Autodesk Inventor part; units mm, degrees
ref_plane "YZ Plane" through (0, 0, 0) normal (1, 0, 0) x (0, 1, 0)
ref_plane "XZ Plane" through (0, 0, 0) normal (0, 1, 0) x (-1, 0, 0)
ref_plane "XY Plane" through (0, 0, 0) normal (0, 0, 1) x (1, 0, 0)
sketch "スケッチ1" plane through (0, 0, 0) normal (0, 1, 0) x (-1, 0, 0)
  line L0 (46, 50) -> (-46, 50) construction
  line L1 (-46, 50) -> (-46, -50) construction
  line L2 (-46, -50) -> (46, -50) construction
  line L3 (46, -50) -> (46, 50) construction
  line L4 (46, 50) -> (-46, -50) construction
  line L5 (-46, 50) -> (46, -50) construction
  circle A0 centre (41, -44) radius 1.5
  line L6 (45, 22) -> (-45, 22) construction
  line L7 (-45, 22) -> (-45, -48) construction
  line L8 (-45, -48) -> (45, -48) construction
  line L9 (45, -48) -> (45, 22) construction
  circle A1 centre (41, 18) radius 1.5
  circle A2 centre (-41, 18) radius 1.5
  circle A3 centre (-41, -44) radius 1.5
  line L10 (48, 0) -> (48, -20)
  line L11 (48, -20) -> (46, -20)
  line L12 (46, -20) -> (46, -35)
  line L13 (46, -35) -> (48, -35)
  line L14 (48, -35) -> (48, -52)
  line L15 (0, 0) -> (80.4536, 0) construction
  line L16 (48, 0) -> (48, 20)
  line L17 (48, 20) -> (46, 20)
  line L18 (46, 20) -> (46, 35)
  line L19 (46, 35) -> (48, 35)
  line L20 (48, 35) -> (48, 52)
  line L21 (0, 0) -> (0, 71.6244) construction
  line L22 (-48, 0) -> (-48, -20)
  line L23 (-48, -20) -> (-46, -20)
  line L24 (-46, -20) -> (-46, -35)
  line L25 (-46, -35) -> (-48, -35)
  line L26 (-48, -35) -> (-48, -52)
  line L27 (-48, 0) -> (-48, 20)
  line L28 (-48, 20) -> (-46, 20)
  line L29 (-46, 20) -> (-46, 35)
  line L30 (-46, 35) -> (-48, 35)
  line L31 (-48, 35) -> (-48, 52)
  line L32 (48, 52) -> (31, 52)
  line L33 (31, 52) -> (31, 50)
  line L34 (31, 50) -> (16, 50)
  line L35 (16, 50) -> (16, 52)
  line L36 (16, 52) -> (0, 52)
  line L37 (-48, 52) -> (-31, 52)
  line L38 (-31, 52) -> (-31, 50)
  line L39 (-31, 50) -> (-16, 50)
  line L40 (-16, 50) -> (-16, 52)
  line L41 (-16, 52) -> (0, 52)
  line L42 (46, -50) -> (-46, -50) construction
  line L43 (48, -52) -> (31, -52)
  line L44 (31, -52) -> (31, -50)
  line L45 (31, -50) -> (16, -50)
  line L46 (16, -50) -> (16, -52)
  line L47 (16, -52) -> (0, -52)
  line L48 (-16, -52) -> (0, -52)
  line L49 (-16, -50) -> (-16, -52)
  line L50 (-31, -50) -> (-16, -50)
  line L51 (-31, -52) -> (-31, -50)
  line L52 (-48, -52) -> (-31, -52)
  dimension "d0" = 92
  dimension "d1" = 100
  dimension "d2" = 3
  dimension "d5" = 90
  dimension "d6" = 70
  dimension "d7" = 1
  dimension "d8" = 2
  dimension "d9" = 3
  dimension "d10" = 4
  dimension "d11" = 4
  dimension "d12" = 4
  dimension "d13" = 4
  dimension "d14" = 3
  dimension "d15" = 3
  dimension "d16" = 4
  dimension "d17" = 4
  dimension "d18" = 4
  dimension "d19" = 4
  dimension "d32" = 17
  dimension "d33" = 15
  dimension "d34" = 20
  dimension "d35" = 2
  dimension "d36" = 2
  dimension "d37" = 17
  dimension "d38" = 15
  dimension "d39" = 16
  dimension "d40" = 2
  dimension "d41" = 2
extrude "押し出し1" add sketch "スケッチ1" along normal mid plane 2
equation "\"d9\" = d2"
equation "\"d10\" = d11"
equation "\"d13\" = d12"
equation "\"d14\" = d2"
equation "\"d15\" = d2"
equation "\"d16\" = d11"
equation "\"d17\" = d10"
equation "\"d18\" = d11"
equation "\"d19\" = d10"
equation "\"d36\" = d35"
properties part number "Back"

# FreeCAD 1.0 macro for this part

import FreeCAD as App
import Part
import Sketcher

doc = App.newDocument("Part")
body = doc.addObject("PartDesign::Body", "Body")

# Sketch on XZ plane
sketch1 = body.newObject("Sketcher::SketchObject", "Sketch")
sketch1.AttachmentSupport = (doc.getObject("XZ_Plane"), [""])
sketch1.MapMode = "FlatFace"
sketch1.addGeometry(Part.LineSegment(App.Vector(-48, -20, 0), App.Vector(-48, 20, 0)), False)
sketch1.addGeometry(Part.LineSegment(App.Vector(-48, 20, 0), App.Vector(-46, 20, 0)), False)
sketch1.addGeometry(Part.LineSegment(App.Vector(-46, 20, 0), App.Vector(-46, 35, 0)), False)
sketch1.addGeometry(Part.LineSegment(App.Vector(-46, 35, 0), App.Vector(-48, 35, 0)), False)
sketch1.addGeometry(Part.LineSegment(App.Vector(-48, 35, 0), App.Vector(-48, 52, 0)), False)
sketch1.addGeometry(Part.LineSegment(App.Vector(-48, 52, 0), App.Vector(-31, 52, 0)), False)
sketch1.addGeometry(Part.LineSegment(App.Vector(-31, 52, 0), App.Vector(-31, 50, 0)), False)
sketch1.addGeometry(Part.LineSegment(App.Vector(-31, 50, 0), App.Vector(-16, 50, 0)), False)
sketch1.addGeometry(Part.LineSegment(App.Vector(-16, 50, 0), App.Vector(-16, 52, 0)), False)
sketch1.addGeometry(Part.LineSegment(App.Vector(-16, 52, 0), App.Vector(16, 52, 0)), False)
sketch1.addGeometry(Part.LineSegment(App.Vector(16, 52, 0), App.Vector(16, 50, 0)), False)
sketch1.addGeometry(Part.LineSegment(App.Vector(16, 50, 0), App.Vector(31, 50, 0)), False)
sketch1.addGeometry(Part.LineSegment(App.Vector(31, 50, 0), App.Vector(31, 52, 0)), False)
sketch1.addGeometry(Part.LineSegment(App.Vector(31, 52, 0), App.Vector(48, 52, 0)), False)
sketch1.addGeometry(Part.LineSegment(App.Vector(48, 52, 0), App.Vector(48, 35, 0)), False)
sketch1.addGeometry(Part.LineSegment(App.Vector(48, 35, 0), App.Vector(46, 35, 0)), False)
sketch1.addGeometry(Part.LineSegment(App.Vector(46, 35, 0), App.Vector(46, 20, 0)), False)
sketch1.addGeometry(Part.LineSegment(App.Vector(46, 20, 0), App.Vector(48, 20, 0)), False)
sketch1.addGeometry(Part.LineSegment(App.Vector(48, 20, 0), App.Vector(48, -20, 0)), False)
sketch1.addGeometry(Part.LineSegment(App.Vector(48, -20, 0), App.Vector(46, -20, 0)), False)
sketch1.addGeometry(Part.LineSegment(App.Vector(46, -20, 0), App.Vector(46, -35, 0)), False)
sketch1.addGeometry(Part.LineSegment(App.Vector(46, -35, 0), App.Vector(48, -35, 0)), False)
sketch1.addGeometry(Part.LineSegment(App.Vector(48, -35, 0), App.Vector(48, -52, 0)), False)
sketch1.addGeometry(Part.LineSegment(App.Vector(48, -52, 0), App.Vector(31, -52, 0)), False)
sketch1.addGeometry(Part.LineSegment(App.Vector(31, -52, 0), App.Vector(31, -50, 0)), False)
sketch1.addGeometry(Part.LineSegment(App.Vector(31, -50, 0), App.Vector(16, -50, 0)), False)
sketch1.addGeometry(Part.LineSegment(App.Vector(16, -50, 0), App.Vector(16, -52, 0)), False)
sketch1.addGeometry(Part.LineSegment(App.Vector(16, -52, 0), App.Vector(-16, -52, 0)), False)
sketch1.addGeometry(Part.LineSegment(App.Vector(-16, -52, 0), App.Vector(-16, -50, 0)), False)
sketch1.addGeometry(Part.LineSegment(App.Vector(-16, -50, 0), App.Vector(-31, -50, 0)), False)
sketch1.addGeometry(Part.LineSegment(App.Vector(-31, -50, 0), App.Vector(-31, -52, 0)), False)
sketch1.addGeometry(Part.LineSegment(App.Vector(-31, -52, 0), App.Vector(-48, -52, 0)), False)
sketch1.addGeometry(Part.LineSegment(App.Vector(-48, -52, 0), App.Vector(-48, -35, 0)), False)
sketch1.addGeometry(Part.LineSegment(App.Vector(-48, -35, 0), App.Vector(-46, -35, 0)), False)
sketch1.addGeometry(Part.LineSegment(App.Vector(-46, -35, 0), App.Vector(-46, -20, 0)), False)
sketch1.addGeometry(Part.LineSegment(App.Vector(-46, -20, 0), App.Vector(-48, -20, 0)), False)
sketch1.addGeometry(Part.Circle(App.Vector(41, -44, 0), App.Vector(0, 0, 1), 1.5), False)
sketch1.addGeometry(Part.Circle(App.Vector(-41, -44, 0), App.Vector(0, 0, 1), 1.5), False)
sketch1.addGeometry(Part.Circle(App.Vector(41, 18, 0), App.Vector(0, 0, 1), 1.5), False)
sketch1.addGeometry(Part.Circle(App.Vector(-41, 18, 0), App.Vector(0, 0, 1), 1.5), False)
sketch1.addConstraint(Sketcher.Constraint("Coincident", 0, 2, 1, 1))
sketch1.addConstraint(Sketcher.Constraint("Coincident", 1, 2, 2, 1))
sketch1.addConstraint(Sketcher.Constraint("Coincident", 2, 2, 3, 1))
sketch1.addConstraint(Sketcher.Constraint("Coincident", 3, 2, 4, 1))
sketch1.addConstraint(Sketcher.Constraint("Coincident", 4, 2, 5, 1))
sketch1.addConstraint(Sketcher.Constraint("Coincident", 5, 2, 6, 1))
sketch1.addConstraint(Sketcher.Constraint("Coincident", 6, 2, 7, 1))
sketch1.addConstraint(Sketcher.Constraint("Coincident", 7, 2, 8, 1))
sketch1.addConstraint(Sketcher.Constraint("Coincident", 8, 2, 9, 1))
sketch1.addConstraint(Sketcher.Constraint("Coincident", 9, 2, 10, 1))
sketch1.addConstraint(Sketcher.Constraint("Coincident", 10, 2, 11, 1))
sketch1.addConstraint(Sketcher.Constraint("Coincident", 11, 2, 12, 1))
sketch1.addConstraint(Sketcher.Constraint("Coincident", 12, 2, 13, 1))
sketch1.addConstraint(Sketcher.Constraint("Coincident", 13, 2, 14, 1))
sketch1.addConstraint(Sketcher.Constraint("Coincident", 14, 2, 15, 1))
sketch1.addConstraint(Sketcher.Constraint("Coincident", 15, 2, 16, 1))
sketch1.addConstraint(Sketcher.Constraint("Coincident", 16, 2, 17, 1))
sketch1.addConstraint(Sketcher.Constraint("Coincident", 17, 2, 18, 1))
sketch1.addConstraint(Sketcher.Constraint("Coincident", 18, 2, 19, 1))
sketch1.addConstraint(Sketcher.Constraint("Coincident", 19, 2, 20, 1))
sketch1.addConstraint(Sketcher.Constraint("Coincident", 20, 2, 21, 1))
sketch1.addConstraint(Sketcher.Constraint("Coincident", 21, 2, 22, 1))
sketch1.addConstraint(Sketcher.Constraint("Coincident", 22, 2, 23, 1))
sketch1.addConstraint(Sketcher.Constraint("Coincident", 23, 2, 24, 1))
sketch1.addConstraint(Sketcher.Constraint("Coincident", 24, 2, 25, 1))
sketch1.addConstraint(Sketcher.Constraint("Coincident", 25, 2, 26, 1))
sketch1.addConstraint(Sketcher.Constraint("Coincident", 26, 2, 27, 1))
sketch1.addConstraint(Sketcher.Constraint("Coincident", 27, 2, 28, 1))
sketch1.addConstraint(Sketcher.Constraint("Coincident", 28, 2, 29, 1))
sketch1.addConstraint(Sketcher.Constraint("Coincident", 29, 2, 30, 1))
sketch1.addConstraint(Sketcher.Constraint("Coincident", 30, 2, 31, 1))
sketch1.addConstraint(Sketcher.Constraint("Coincident", 31, 2, 32, 1))
sketch1.addConstraint(Sketcher.Constraint("Coincident", 32, 2, 33, 1))
sketch1.addConstraint(Sketcher.Constraint("Coincident", 33, 2, 34, 1))
sketch1.addConstraint(Sketcher.Constraint("Coincident", 34, 2, 35, 1))
sketch1.addConstraint(Sketcher.Constraint("Coincident", 35, 2, 0, 1))
sketch1.addConstraint(Sketcher.Constraint("Vertical", 0))
sketch1.addConstraint(Sketcher.Constraint("Horizontal", 1))
sketch1.addConstraint(Sketcher.Constraint("Vertical", 2))
sketch1.addConstraint(Sketcher.Constraint("Horizontal", 3))
sketch1.addConstraint(Sketcher.Constraint("Vertical", 4))
sketch1.addConstraint(Sketcher.Constraint("Horizontal", 5))
sketch1.addConstraint(Sketcher.Constraint("Vertical", 6))
sketch1.addConstraint(Sketcher.Constraint("Horizontal", 7))
sketch1.addConstraint(Sketcher.Constraint("Vertical", 8))
sketch1.addConstraint(Sketcher.Constraint("Horizontal", 9))
sketch1.addConstraint(Sketcher.Constraint("Vertical", 10))
sketch1.addConstraint(Sketcher.Constraint("Horizontal", 11))
sketch1.addConstraint(Sketcher.Constraint("Vertical", 12))
sketch1.addConstraint(Sketcher.Constraint("Horizontal", 13))
sketch1.addConstraint(Sketcher.Constraint("Vertical", 14))
sketch1.addConstraint(Sketcher.Constraint("Horizontal", 15))
sketch1.addConstraint(Sketcher.Constraint("Vertical", 16))
sketch1.addConstraint(Sketcher.Constraint("Horizontal", 17))
sketch1.addConstraint(Sketcher.Constraint("Vertical", 18))
sketch1.addConstraint(Sketcher.Constraint("Horizontal", 19))
sketch1.addConstraint(Sketcher.Constraint("Vertical", 20))
sketch1.addConstraint(Sketcher.Constraint("Horizontal", 21))
sketch1.addConstraint(Sketcher.Constraint("Vertical", 22))
sketch1.addConstraint(Sketcher.Constraint("Horizontal", 23))
sketch1.addConstraint(Sketcher.Constraint("Vertical", 24))
sketch1.addConstraint(Sketcher.Constraint("Horizontal", 25))
sketch1.addConstraint(Sketcher.Constraint("Vertical", 26))
sketch1.addConstraint(Sketcher.Constraint("Horizontal", 27))
sketch1.addConstraint(Sketcher.Constraint("Vertical", 28))
sketch1.addConstraint(Sketcher.Constraint("Horizontal", 29))
sketch1.addConstraint(Sketcher.Constraint("Vertical", 30))
sketch1.addConstraint(Sketcher.Constraint("Horizontal", 31))
sketch1.addConstraint(Sketcher.Constraint("Vertical", 32))
sketch1.addConstraint(Sketcher.Constraint("Horizontal", 33))
sketch1.addConstraint(Sketcher.Constraint("Vertical", 34))
sketch1.addConstraint(Sketcher.Constraint("Horizontal", 35))
sketch1.addConstraint(Sketcher.Constraint("Equal", 36, 37))
sketch1.addConstraint(Sketcher.Constraint("Equal", 37, 38))
sketch1.addConstraint(Sketcher.Constraint("Equal", 38, 39))
sketch1.addConstraint(Sketcher.Constraint("Symmetric", 0, 2, 18, 2, -1, 1))
sketch1.addConstraint(Sketcher.Constraint("Symmetric", 2, 2, 20, 2, -1, 1))
sketch1.addConstraint(Sketcher.Constraint("Symmetric", 4, 2, 22, 2, -1, 1))
sketch1.addConstraint(Sketcher.Constraint("Symmetric", 6, 2, 24, 2, -1, 1))
sketch1.addConstraint(Sketcher.Constraint("Symmetric", 8, 2, 26, 2, -1, 1))
sketch1.addConstraint(Sketcher.Constraint("Symmetric", 10, 2, 28, 2, -1, 1))
sketch1.addConstraint(Sketcher.Constraint("Symmetric", 12, 2, 30, 2, -1, 1))
sketch1.addConstraint(Sketcher.Constraint("Symmetric", 14, 2, 32, 2, -1, 1))
sketch1.addConstraint(Sketcher.Constraint("Symmetric", 16, 2, 34, 2, -1, 1))
sketch1.addConstraint(Sketcher.Constraint("Symmetric", 36, 3, 37, 3, -2))
sketch1.addConstraint(Sketcher.Constraint("Symmetric", 38, 3, 39, 3, -2))
sketch1.addConstraint(Sketcher.Constraint("Symmetric", 7, 2, 10, 2, -2))
sketch1.addConstraint(Sketcher.Constraint("Symmetric", 5, 2, 12, 2, -2))
sketch1.addConstraint(Sketcher.Constraint("Symmetric", 3, 2, 14, 2, -2))
sketch1.addConstraint(Sketcher.Constraint("Symmetric", 1, 2, 16, 2, -2))
sketch1.addConstraint(Sketcher.Constraint("Horizontal", 5, 2, 8, 2))
sketch1.addConstraint(Sketcher.Constraint("Vertical", 36, 3, 38, 3))
sketch1.addConstraint(Sketcher.Constraint("Vertical", 0, 2, 3, 2))
sketch1.addConstraint(Sketcher.Constraint("Equal", 29, 2))
sketch1.addConstraint(Sketcher.Constraint("Equal", 31, 4))
sketch1.addConstraint(Sketcher.Constraint("Equal", 35, 6))
sketch1.addConstraint(Sketcher.Constraint("Diameter", 36, 3.0))
sketch1.addConstraint(Sketcher.Constraint("DistanceX", 1, 1, 1, 2, 2.0))
sketch1.addConstraint(Sketcher.Constraint("DistanceX", 5, 1, 5, 2, 17.0))
sketch1.addConstraint(Sketcher.Constraint("DistanceX", 7, 1, 7, 2, 15.0))
sketch1.addConstraint(Sketcher.Constraint("DistanceY", -1, 1, 0, 2, 20.0))
sketch1.addConstraint(Sketcher.Constraint("DistanceX", 7, 2, -1, 1, 16.0))
sketch1.addConstraint(Sketcher.Constraint("DistanceY", 39, 3, 0, 2, 2.0))
sketch1.addConstraint(Sketcher.Constraint("DistanceX", -1, 1, 36, 3, 41.0))
sketch1.addConstraint(Sketcher.Constraint("DistanceY", 36, 3, -1, 1, 44.0))
pad1 = body.newObject("PartDesign::Pad", "Pad")
pad1.Profile = sketch1
pad1.Length = 2
pad1.Midplane = True

doc.recompute()
